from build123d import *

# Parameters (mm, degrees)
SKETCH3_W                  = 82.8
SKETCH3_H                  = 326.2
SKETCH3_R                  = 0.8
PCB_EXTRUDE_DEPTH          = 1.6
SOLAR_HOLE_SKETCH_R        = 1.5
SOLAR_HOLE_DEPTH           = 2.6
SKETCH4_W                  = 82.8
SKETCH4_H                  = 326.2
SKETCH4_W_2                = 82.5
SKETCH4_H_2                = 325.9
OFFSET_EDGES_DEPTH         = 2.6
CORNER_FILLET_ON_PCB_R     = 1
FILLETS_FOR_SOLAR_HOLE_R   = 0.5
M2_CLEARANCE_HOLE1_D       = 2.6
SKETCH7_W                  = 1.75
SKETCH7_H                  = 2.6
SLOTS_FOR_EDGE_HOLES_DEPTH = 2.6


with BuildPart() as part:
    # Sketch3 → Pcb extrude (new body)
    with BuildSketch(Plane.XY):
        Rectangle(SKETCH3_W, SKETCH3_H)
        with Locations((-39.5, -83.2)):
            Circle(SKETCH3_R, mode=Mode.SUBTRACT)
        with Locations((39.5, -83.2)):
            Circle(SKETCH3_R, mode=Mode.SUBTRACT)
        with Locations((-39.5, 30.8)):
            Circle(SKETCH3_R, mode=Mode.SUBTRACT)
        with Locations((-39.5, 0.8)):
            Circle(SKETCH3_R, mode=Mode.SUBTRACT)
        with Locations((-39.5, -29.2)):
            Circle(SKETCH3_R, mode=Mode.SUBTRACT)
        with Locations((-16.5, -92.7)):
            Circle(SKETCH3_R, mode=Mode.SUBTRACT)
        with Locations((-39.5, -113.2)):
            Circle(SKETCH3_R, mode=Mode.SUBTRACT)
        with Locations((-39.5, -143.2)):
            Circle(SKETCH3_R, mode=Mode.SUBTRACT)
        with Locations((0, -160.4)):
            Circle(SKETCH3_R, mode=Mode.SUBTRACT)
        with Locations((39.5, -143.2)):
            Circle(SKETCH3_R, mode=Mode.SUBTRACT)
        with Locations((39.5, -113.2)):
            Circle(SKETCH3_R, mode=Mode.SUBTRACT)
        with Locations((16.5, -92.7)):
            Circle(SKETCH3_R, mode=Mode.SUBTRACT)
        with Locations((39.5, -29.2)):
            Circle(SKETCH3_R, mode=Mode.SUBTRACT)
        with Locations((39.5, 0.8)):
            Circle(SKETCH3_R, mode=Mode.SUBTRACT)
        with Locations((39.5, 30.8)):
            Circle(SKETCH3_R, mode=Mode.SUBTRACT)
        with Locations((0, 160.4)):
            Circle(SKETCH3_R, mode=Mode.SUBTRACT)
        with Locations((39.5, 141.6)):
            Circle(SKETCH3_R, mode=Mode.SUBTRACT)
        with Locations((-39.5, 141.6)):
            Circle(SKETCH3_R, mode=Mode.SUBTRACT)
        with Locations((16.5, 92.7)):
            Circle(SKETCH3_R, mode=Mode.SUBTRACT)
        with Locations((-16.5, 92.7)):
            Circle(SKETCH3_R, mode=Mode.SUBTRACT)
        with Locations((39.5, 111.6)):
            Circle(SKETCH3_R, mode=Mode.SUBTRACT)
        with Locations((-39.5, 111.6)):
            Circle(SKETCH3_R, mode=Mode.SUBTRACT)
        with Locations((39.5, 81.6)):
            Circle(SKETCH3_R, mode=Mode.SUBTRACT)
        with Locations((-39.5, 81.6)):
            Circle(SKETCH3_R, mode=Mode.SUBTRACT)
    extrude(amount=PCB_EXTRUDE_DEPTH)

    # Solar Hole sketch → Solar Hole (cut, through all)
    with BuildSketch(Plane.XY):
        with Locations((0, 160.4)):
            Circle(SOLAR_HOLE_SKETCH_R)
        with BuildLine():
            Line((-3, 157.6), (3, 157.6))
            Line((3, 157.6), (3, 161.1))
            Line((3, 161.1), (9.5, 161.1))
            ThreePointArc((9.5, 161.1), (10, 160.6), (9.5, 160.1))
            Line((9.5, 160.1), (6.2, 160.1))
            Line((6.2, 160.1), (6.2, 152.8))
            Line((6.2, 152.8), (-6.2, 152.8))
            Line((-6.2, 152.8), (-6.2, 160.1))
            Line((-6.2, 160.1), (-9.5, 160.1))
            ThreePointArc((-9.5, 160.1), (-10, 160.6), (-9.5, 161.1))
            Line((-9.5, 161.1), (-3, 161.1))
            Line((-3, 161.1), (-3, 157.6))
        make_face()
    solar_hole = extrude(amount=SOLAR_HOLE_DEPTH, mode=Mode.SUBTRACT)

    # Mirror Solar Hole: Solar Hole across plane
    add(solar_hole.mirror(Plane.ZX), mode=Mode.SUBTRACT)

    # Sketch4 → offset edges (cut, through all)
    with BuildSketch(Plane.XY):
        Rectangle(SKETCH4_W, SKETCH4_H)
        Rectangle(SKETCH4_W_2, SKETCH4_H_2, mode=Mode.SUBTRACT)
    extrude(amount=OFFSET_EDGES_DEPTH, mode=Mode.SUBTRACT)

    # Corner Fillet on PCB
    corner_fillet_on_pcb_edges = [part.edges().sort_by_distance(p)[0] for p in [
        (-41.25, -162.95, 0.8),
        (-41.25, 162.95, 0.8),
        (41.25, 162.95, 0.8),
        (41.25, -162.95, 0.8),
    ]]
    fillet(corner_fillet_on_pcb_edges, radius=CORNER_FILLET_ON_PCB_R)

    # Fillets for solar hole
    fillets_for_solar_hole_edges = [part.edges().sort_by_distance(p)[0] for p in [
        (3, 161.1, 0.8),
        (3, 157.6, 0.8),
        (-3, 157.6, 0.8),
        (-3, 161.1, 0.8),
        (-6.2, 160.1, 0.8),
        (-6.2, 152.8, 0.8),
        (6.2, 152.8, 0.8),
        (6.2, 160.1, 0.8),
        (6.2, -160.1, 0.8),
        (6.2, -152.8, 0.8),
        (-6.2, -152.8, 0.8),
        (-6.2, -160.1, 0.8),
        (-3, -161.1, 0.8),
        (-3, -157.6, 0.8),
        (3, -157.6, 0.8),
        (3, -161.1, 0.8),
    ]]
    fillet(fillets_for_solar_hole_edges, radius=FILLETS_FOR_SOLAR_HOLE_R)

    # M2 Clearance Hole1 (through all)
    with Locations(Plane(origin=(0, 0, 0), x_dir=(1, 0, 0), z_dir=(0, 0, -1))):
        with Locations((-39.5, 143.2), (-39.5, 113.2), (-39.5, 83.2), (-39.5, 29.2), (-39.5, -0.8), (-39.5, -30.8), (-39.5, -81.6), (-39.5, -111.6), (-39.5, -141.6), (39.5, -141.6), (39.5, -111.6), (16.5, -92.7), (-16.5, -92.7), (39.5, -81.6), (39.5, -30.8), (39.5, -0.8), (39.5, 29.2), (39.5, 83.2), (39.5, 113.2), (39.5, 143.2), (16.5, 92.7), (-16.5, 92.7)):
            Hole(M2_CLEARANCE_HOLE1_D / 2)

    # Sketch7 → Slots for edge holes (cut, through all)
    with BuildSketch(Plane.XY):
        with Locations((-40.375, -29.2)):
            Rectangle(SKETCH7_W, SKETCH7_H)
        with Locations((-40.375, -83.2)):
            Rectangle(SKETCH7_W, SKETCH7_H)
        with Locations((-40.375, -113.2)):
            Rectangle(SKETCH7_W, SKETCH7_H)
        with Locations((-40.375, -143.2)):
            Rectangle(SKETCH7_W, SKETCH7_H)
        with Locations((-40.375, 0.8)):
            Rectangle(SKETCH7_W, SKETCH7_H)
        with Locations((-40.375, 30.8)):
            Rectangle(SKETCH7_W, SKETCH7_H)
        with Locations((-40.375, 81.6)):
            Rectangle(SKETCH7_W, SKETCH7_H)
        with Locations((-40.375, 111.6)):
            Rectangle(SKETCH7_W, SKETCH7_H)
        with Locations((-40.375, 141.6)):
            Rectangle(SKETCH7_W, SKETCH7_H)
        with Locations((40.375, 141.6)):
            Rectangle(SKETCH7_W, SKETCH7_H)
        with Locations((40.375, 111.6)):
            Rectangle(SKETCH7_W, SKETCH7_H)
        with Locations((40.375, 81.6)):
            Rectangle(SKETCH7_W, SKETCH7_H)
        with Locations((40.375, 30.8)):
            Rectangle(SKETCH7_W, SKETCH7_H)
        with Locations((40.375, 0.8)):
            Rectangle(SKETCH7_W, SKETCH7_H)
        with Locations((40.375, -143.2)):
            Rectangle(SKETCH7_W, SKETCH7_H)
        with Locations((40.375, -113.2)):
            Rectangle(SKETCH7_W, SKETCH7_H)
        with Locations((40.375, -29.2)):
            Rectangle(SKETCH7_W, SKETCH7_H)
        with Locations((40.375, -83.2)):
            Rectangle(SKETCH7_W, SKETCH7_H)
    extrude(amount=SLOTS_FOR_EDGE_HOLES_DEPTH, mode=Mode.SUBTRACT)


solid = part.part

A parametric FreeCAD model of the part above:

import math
import FreeCAD as App
import Part
import Sketcher

V = App.Vector
Q = App.Units.Quantity


def edges_at(feature, points):
    """Names of the edges that pass closest to the given points."""
    edges = feature.Shape.Edges
    near = lambda p: min(range(len(edges)), key=lambda i: edges[i].distToShape(Part.Vertex(*p))[0])
    return sorted({f"Edge{near(p) + 1}" for p in points})


def add_polygon(sketch, points):
    """Adds a closed chain of lines whose ends are joined by coincident constraints."""
    first, n = sketch.GeometryCount, len(points)
    for a, b in zip(points, points[1:] + points[:1]):
        sketch.addGeometry(Part.LineSegment(App.Vector(*a, 0), App.Vector(*b, 0)), False)
    for i in range(n):
        sketch.addConstraint(Sketcher.Constraint("Coincident", first + i, 2, first + (i + 1) % n, 1))

doc = App.newDocument("Part")
body = doc.addObject("PartDesign::Body", "Body")

# Sketch on XY plane
sketch1 = body.newObject("Sketcher::SketchObject", "Sketch")
sketch1.AttachmentSupport = (doc.getObject("XY_Plane"), [""])
sketch1.MapMode = "FlatFace"
add_polygon(sketch1, [(-41.4, 163.1), (-41.4, -163.1), (41.4, -163.1), (41.4, 163.1)])  # lines 0-3
sketch1.addGeometry(Part.Circle(V(-39.5, -143.2, 0), V(0, 0, 1), 0.8), False)  # 4
sketch1.addGeometry(Part.Circle(V(-39.5, -113.2, 0), V(0, 0, 1), 0.8), False)  # 5
sketch1.addGeometry(Part.Circle(V(-39.5, -83.2, 0), V(0, 0, 1), 0.8), False)  # 6
sketch1.addGeometry(Part.Circle(V(-16.5, -92.7, 0), V(0, 0, 1), 0.8), False)  # 7
sketch1.addGeometry(Part.Circle(V(-39.5, -29.2, 0), V(0, 0, 1), 0.8), False)  # 8
sketch1.addGeometry(Part.Circle(V(0, -160.4, 0), V(0, 0, 1), 0.8), False)  # 9
sketch1.addGeometry(Part.Circle(V(16.5, -92.7, 0), V(0, 0, 1), 0.8), False)  # 10
sketch1.addGeometry(Part.Circle(V(39.5, -143.2, 0), V(0, 0, 1), 0.8), False)  # 11
sketch1.addGeometry(Part.Circle(V(39.5, -113.2, 0), V(0, 0, 1), 0.8), False)  # 12
sketch1.addGeometry(Part.Circle(V(39.5, -83.2, 0), V(0, 0, 1), 0.8), False)  # 13
sketch1.addGeometry(Part.Circle(V(39.5, -29.2, 0), V(0, 0, 1), 0.8), False)  # 14
sketch1.addGeometry(Part.Circle(V(-39.5, 0.8, 0), V(0, 0, 1), 0.8), False)  # 15
sketch1.addGeometry(Part.Circle(V(-39.5, 30.8, 0), V(0, 0, 1), 0.8), False)  # 16
sketch1.addGeometry(Part.Circle(V(-39.5, 81.6, 0), V(0, 0, 1), 0.8), False)  # 17
sketch1.addGeometry(Part.Circle(V(-39.5, 111.6, 0), V(0, 0, 1), 0.8), False)  # 18
sketch1.addGeometry(Part.Circle(V(-39.5, 141.6, 0), V(0, 0, 1), 0.8), False)  # 19
sketch1.addGeometry(Part.Circle(V(-16.5, 92.7, 0), V(0, 0, 1), 0.8), False)  # 20
sketch1.addGeometry(Part.Circle(V(39.5, 0.8, 0), V(0, 0, 1), 0.8), False)  # 21
sketch1.addGeometry(Part.Circle(V(39.5, 30.8, 0), V(0, 0, 1), 0.8), False)  # 22
sketch1.addGeometry(Part.Circle(V(16.5, 92.7, 0), V(0, 0, 1), 0.8), False)  # 23
sketch1.addGeometry(Part.Circle(V(0, 160.4, 0), V(0, 0, 1), 0.8), False)  # 24
sketch1.addGeometry(Part.Circle(V(39.5, 81.6, 0), V(0, 0, 1), 0.8), False)  # 25
sketch1.addGeometry(Part.Circle(V(39.5, 111.6, 0), V(0, 0, 1), 0.8), False)  # 26
sketch1.addGeometry(Part.Circle(V(39.5, 141.6, 0), V(0, 0, 1), 0.8), False)  # 27
sketch1.addConstraint(Sketcher.Constraint("Vertical", 0))
sketch1.addConstraint(Sketcher.Constraint("Horizontal", 1))
sketch1.addConstraint(Sketcher.Constraint("Vertical", 2))
sketch1.addConstraint(Sketcher.Constraint("Horizontal", 3))
sketch1.addConstraint(Sketcher.Constraint("Equal", 4, 5))
sketch1.addConstraint(Sketcher.Constraint("Equal", 5, 6))
sketch1.addConstraint(Sketcher.Constraint("Equal", 6, 7))
sketch1.addConstraint(Sketcher.Constraint("Equal", 7, 8))
sketch1.addConstraint(Sketcher.Constraint("Equal", 8, 9))
sketch1.addConstraint(Sketcher.Constraint("Equal", 9, 10))
sketch1.addConstraint(Sketcher.Constraint("Equal", 10, 11))
sketch1.addConstraint(Sketcher.Constraint("Equal", 11, 12))
sketch1.addConstraint(Sketcher.Constraint("Equal", 12, 13))
sketch1.addConstraint(Sketcher.Constraint("Equal", 13, 14))
sketch1.addConstraint(Sketcher.Constraint("Equal", 14, 15))
sketch1.addConstraint(Sketcher.Constraint("Equal", 15, 16))
sketch1.addConstraint(Sketcher.Constraint("Equal", 16, 17))
sketch1.addConstraint(Sketcher.Constraint("Equal", 17, 18))
sketch1.addConstraint(Sketcher.Constraint("Equal", 18, 19))
sketch1.addConstraint(Sketcher.Constraint("Equal", 19, 20))
sketch1.addConstraint(Sketcher.Constraint("Equal", 20, 21))
sketch1.addConstraint(Sketcher.Constraint("Equal", 21, 22))
sketch1.addConstraint(Sketcher.Constraint("Equal", 22, 23))
sketch1.addConstraint(Sketcher.Constraint("Equal", 23, 24))
sketch1.addConstraint(Sketcher.Constraint("Equal", 24, 25))
sketch1.addConstraint(Sketcher.Constraint("Equal", 25, 26))
sketch1.addConstraint(Sketcher.Constraint("Equal", 26, 27))
sketch1.addConstraint(Sketcher.Constraint("Symmetric", 10, 3, 20, 3, -1, 1))
sketch1.addConstraint(Sketcher.Constraint("Symmetric", 7, 3, 23, 3, -1, 1))
sketch1.addConstraint(Sketcher.Constraint("Symmetric", 9, 3, 24, 3, -1, 1))
sketch1.addConstraint(Sketcher.Constraint("Symmetric", 0, 2, 2, 2, -1, 1))
sketch1.addConstraint(Sketcher.Constraint("Symmetric", 7, 3, 10, 3, -2))
sketch1.addConstraint(Sketcher.Constraint("Symmetric", 4, 3, 11, 3, -2))
sketch1.addConstraint(Sketcher.Constraint("Symmetric", 5, 3, 12, 3, -2))
sketch1.addConstraint(Sketcher.Constraint("Symmetric", 6, 3, 13, 3, -2))
sketch1.addConstraint(Sketcher.Constraint("Symmetric", 8, 3, 14, 3, -2))
sketch1.addConstraint(Sketcher.Constraint("Symmetric", 15, 3, 21, 3, -2))
sketch1.addConstraint(Sketcher.Constraint("Symmetric", 16, 3, 22, 3, -2))
sketch1.addConstraint(Sketcher.Constraint("Symmetric", 17, 3, 25, 3, -2))
sketch1.addConstraint(Sketcher.Constraint("Symmetric", 18, 3, 26, 3, -2))
sketch1.addConstraint(Sketcher.Constraint("Symmetric", 19, 3, 27, 3, -2))
sketch1.addConstraint(Sketcher.Constraint("PointOnObject", 9, 3, -2))
sketch1.addConstraint(Sketcher.Constraint("Vertical", 4, 3, 5, 3))
sketch1.addConstraint(Sketcher.Constraint("Vertical", 5, 3, 6, 3))
sketch1.addConstraint(Sketcher.Constraint("Vertical", 6, 3, 8, 3))
sketch1.addConstraint(Sketcher.Constraint("Vertical", 8, 3, 15, 3))
sketch1.addConstraint(Sketcher.Constraint("Vertical", 15, 3, 16, 3))
sketch1.addConstraint(Sketcher.Constraint("Vertical", 16, 3, 17, 3))
sketch1.addConstraint(Sketcher.Constraint("Vertical", 17, 3, 18, 3))
sketch1.addConstraint(Sketcher.Constraint("Vertical", 18, 3, 19, 3))
sketch1.addConstraint(Sketcher.Constraint("Diameter", 4, Q("1.6 mm")))
sketch1.addConstraint(Sketcher.Constraint("DistanceX", 1, 1, 1, 2, Q("82.8 mm")))
sketch1.addConstraint(Sketcher.Constraint("DistanceY", 0, 2, 0, 1, Q("326.2 mm")))
sketch1.addConstraint(Sketcher.Constraint("DistanceY", 4, 3, 5, 3, Q("30 mm")))
sketch1.addConstraint(Sketcher.Constraint("DistanceY", 5, 3, 6, 3, Q("30 mm")))
sketch1.addConstraint(Sketcher.Constraint("DistanceX", 6, 3, 7, 3, Q("23 mm")))
sketch1.addConstraint(Sketcher.Constraint("DistanceY", 6, 3, 8, 3, Q("54 mm")))
sketch1.addConstraint(Sketcher.Constraint("DistanceX", 7, 3, 10, 3, Q("33 mm")))
sketch1.addConstraint(Sketcher.Constraint("DistanceY", 8, 3, 15, 3, Q("30 mm")))
sketch1.addConstraint(Sketcher.Constraint("DistanceY", 15, 3, 16, 3, Q("30 mm")))
sketch1.addConstraint(Sketcher.Constraint("DistanceY", 17, 3, 18, 3, Q("30 mm")))
sketch1.addConstraint(Sketcher.Constraint("DistanceY", 18, 3, 19, 3, Q("30 mm")))
sketch1.addConstraint(Sketcher.Constraint("DistanceY", 4, 3, -1, 1, Q("143.2 mm")))
sketch1.addConstraint(Sketcher.Constraint("DistanceY", 7, 3, -1, 1, Q("92.7 mm")))
sketch1.addConstraint(Sketcher.Constraint("DistanceY", 9, 3, -1, 1, Q("160.4 mm")))
sketch1.addConstraint(Sketcher.Constraint("DistanceY", -1, 1, 17, 3, Q("81.6 mm")))
pad1 = body.newObject("PartDesign::Pad", "Pad")
pad1.Profile = sketch1
pad1.Length = 1.6

# Sketch on XY plane
sketch2 = body.newObject("Sketcher::SketchObject", "Sketch001")
sketch2.AttachmentSupport = (doc.getObject("XY_Plane"), [""])
sketch2.MapMode = "FlatFace"
sketch2.addGeometry(Part.Circle(V(0, 160.4, 0), V(0, 0, 1), 1.5), False)
sketch2.addGeometry(Part.LineSegment(V(3, 157.6, 0), V(-3, 157.6, 0)), False)
sketch2.addGeometry(Part.LineSegment(V(-3, 157.6, 0), V(-3, 161.1, 0)), False)
sketch2.addGeometry(Part.LineSegment(V(-3, 161.1, 0), V(-9.5, 161.1, 0)), False)
sketch2.addGeometry(Part.ArcOfCircle(Part.Circle(V(-9.5, 160.6, 0), V(0, 0, 1), 0.5), math.radians(90), math.radians(270)), False)
sketch2.addGeometry(Part.LineSegment(V(-9.5, 160.1, 0), V(-6.2, 160.1, 0)), False)
sketch2.addGeometry(Part.LineSegment(V(-6.2, 160.1, 0), V(-6.2, 152.8, 0)), False)
sketch2.addGeometry(Part.LineSegment(V(-6.2, 152.8, 0), V(6.2, 152.8, 0)), False)
sketch2.addGeometry(Part.LineSegment(V(6.2, 152.8, 0), V(6.2, 160.1, 0)), False)
sketch2.addGeometry(Part.LineSegment(V(6.2, 160.1, 0), V(9.5, 160.1, 0)), False)
sketch2.addGeometry(Part.ArcOfCircle(Part.Circle(V(9.5, 160.6, 0), V(0, 0, 1), 0.5), math.radians(-90), math.radians(90)), False)
sketch2.addGeometry(Part.LineSegment(V(9.5, 161.1, 0), V(3, 161.1, 0)), False)
sketch2.addGeometry(Part.LineSegment(V(3, 161.1, 0), V(3, 157.6, 0)), False)
sketch2.addConstraint(Sketcher.Constraint("Coincident", 1, 2, 2, 1))
sketch2.addConstraint(Sketcher.Constraint("Coincident", 2, 2, 3, 1))
sketch2.addConstraint(Sketcher.Constraint("Tangent", 3, 2, 4, 1))
sketch2.addConstraint(Sketcher.Constraint("Tangent", 4, 2, 5, 1))
sketch2.addConstraint(Sketcher.Constraint("Coincident", 5, 2, 6, 1))
sketch2.addConstraint(Sketcher.Constraint("Coincident", 6, 2, 7, 1))
sketch2.addConstraint(Sketcher.Constraint("Coincident", 7, 2, 8, 1))
sketch2.addConstraint(Sketcher.Constraint("Coincident", 8, 2, 9, 1))
sketch2.addConstraint(Sketcher.Constraint("Tangent", 9, 2, 10, 1))
sketch2.addConstraint(Sketcher.Constraint("Tangent", 10, 2, 11, 1))
sketch2.addConstraint(Sketcher.Constraint("Coincident", 11, 2, 12, 1))
sketch2.addConstraint(Sketcher.Constraint("Coincident", 12, 2, 1, 1))
sketch2.addConstraint(Sketcher.Constraint("Horizontal", 1))
sketch2.addConstraint(Sketcher.Constraint("Vertical", 2))
sketch2.addConstraint(Sketcher.Constraint("Horizontal", 3))
sketch2.addConstraint(Sketcher.Constraint("Horizontal", 5))
sketch2.addConstraint(Sketcher.Constraint("Vertical", 6))
sketch2.addConstraint(Sketcher.Constraint("Horizontal", 7))
sketch2.addConstraint(Sketcher.Constraint("Vertical", 8))
sketch2.addConstraint(Sketcher.Constraint("Horizontal", 9))
sketch2.addConstraint(Sketcher.Constraint("Horizontal", 11))
sketch2.addConstraint(Sketcher.Constraint("Vertical", 12))
sketch2.addConstraint(Sketcher.Constraint("Equal", 4, 10))
sketch2.addConstraint(Sketcher.Constraint("Symmetric", 4, 3, 10, 3, -2))
sketch2.addConstraint(Sketcher.Constraint("PointOnObject", 0, 3, -2))
sketch2.addConstraint(Sketcher.Constraint("Equal", 5, 9))
sketch2.addConstraint(Sketcher.Constraint("Equal", 3, 11))
sketch2.addConstraint(Sketcher.Constraint("Diameter", 0, Q("3 mm")))
sketch2.addConstraint(Sketcher.Constraint("Radius", 4, Q("0.5 mm")))
sketch2.addConstraint(Sketcher.Constraint("DistanceX", 1, 2, 1, 1, Q("6 mm")))
sketch2.addConstraint(Sketcher.Constraint("DistanceX", 3, 2, 3, 1, Q("6.5 mm")))
sketch2.addConstraint(Sketcher.Constraint("DistanceX", 5, 1, 5, 2, Q("3.3 mm")))
sketch2.addConstraint(Sketcher.Constraint("DistanceY", 2, 1, 2, 2, Q("3.5 mm")))
sketch2.addConstraint(Sketcher.Constraint("DistanceY", 6, 2, 6, 1, Q("7.3 mm")))
sketch2.addConstraint(Sketcher.Constraint("DistanceY", -1, 1, 0, 3, Q("160.4 mm")))
sketch2.addConstraint(Sketcher.Constraint("DistanceY", -1, 1, 4, 3, Q("160.6 mm")))
pocket1 = body.newObject("PartDesign::Pocket", "Pocket")
pocket1.Profile = sketch2
pocket1.Type = "ThroughAll"
pocket1.Reversed = True
doc.recompute()

mirrored = body.newObject("PartDesign::Mirrored", "Mirrored")
mirrored.Originals = [pocket1]
mirrored.MirrorPlane = (doc.getObject("XZ_Plane"), [""])
body.Tip = mirrored

# Sketch on XY plane
sketch3 = body.newObject("Sketcher::SketchObject", "Sketch002")
sketch3.AttachmentSupport = (doc.getObject("XY_Plane"), [""])
sketch3.MapMode = "FlatFace"
add_polygon(sketch3, [(-41.4, 163.1), (-41.4, -163.1), (41.4, -163.1), (41.4, 163.1)])  # lines 0-3
add_polygon(sketch3, [(41.25, -162.95), (-41.25, -162.95), (-41.25, 162.95), (41.25, 162.95)])  # lines 4-7
sketch3.addConstraint(Sketcher.Constraint("Vertical", 0))
sketch3.addConstraint(Sketcher.Constraint("Horizontal", 1))
sketch3.addConstraint(Sketcher.Constraint("Vertical", 2))
sketch3.addConstraint(Sketcher.Constraint("Horizontal", 3))
sketch3.addConstraint(Sketcher.Constraint("Horizontal", 4))
sketch3.addConstraint(Sketcher.Constraint("Vertical", 5))
sketch3.addConstraint(Sketcher.Constraint("Horizontal", 6))
sketch3.addConstraint(Sketcher.Constraint("Vertical", 7))
sketch3.addConstraint(Sketcher.Constraint("Symmetric", 0, 2, 2, 2, -1, 1))
sketch3.addConstraint(Sketcher.Constraint("Symmetric", 4, 2, 6, 2, -1, 1))
sketch3.addConstraint(Sketcher.Constraint("DistanceX", 1, 1, 1, 2, Q("82.8 mm")))
sketch3.addConstraint(Sketcher.Constraint("DistanceX", 4, 2, 4, 1, Q("82.5 mm")))
sketch3.addConstraint(Sketcher.Constraint("DistanceY", 0, 2, 0, 1, Q("326.2 mm")))
sketch3.addConstraint(Sketcher.Constraint("DistanceY", 5, 1, 5, 2, Q("325.9 mm")))
pocket2 = body.newObject("PartDesign::Pocket", "Pocket001")
pocket2.Profile = sketch3
pocket2.Type = "ThroughAll"
pocket2.Reversed = True
doc.recompute()

fillet = body.newObject("PartDesign::Fillet", "Fillet")
fillet.Base = (pocket2, edges_at(pocket2, [
    (-41.25, -162.95, 0.8),
    (-41.25, 162.95, 0.8),
    (41.25, 162.95, 0.8),
    (41.25, -162.95, 0.8),
]))
fillet.Radius = 1
doc.recompute()

fillet2 = body.newObject("PartDesign::Fillet", "Fillet001")
fillet2.Base = (fillet, edges_at(fillet, [
    (3, 161.1, 0.8),
    (3, 157.6, 0.8),
    (-3, 157.6, 0.8),
    (-3, 161.1, 0.8),
    (-6.2, 160.1, 0.8),
    (-6.2, 152.8, 0.8),
    (6.2, 152.8, 0.8),
    (6.2, 160.1, 0.8),
    (6.2, -160.1, 0.8),
    (6.2, -152.8, 0.8),
    (-6.2, -152.8, 0.8),
    (-6.2, -160.1, 0.8),
    (-3, -161.1, 0.8),
    (-3, -157.6, 0.8),
    (3, -157.6, 0.8),
    (3, -161.1, 0.8),
]))
fillet2.Radius = 0.5

# Sketch on XY plane
sketch4 = body.newObject("Sketcher::SketchObject", "Sketch003")
sketch4.AttachmentSupport = (doc.getObject("XY_Plane"), [""])
sketch4.MapMode = "FlatFace"
sketch4.addGeometry(Part.Circle(V(-39.5, -143.2, 0), V(0, 0, 1), 1.3), False)
sketch4.addGeometry(Part.Circle(V(-39.5, -113.2, 0), V(0, 0, 1), 1.3), False)
sketch4.addGeometry(Part.Circle(V(-39.5, -83.2, 0), V(0, 0, 1), 1.3), False)
sketch4.addGeometry(Part.Circle(V(-39.5, -29.2, 0), V(0, 0, 1), 1.3), False)
sketch4.addGeometry(Part.Circle(V(-39.5, 0.8, 0), V(0, 0, 1), 1.3), False)
sketch4.addGeometry(Part.Circle(V(-39.5, 30.8, 0), V(0, 0, 1), 1.3), False)
sketch4.addGeometry(Part.Circle(V(-39.5, 81.6, 0), V(0, 0, 1), 1.3), False)
sketch4.addGeometry(Part.Circle(V(-39.5, 111.6, 0), V(0, 0, 1), 1.3), False)
sketch4.addGeometry(Part.Circle(V(-39.5, 141.6, 0), V(0, 0, 1), 1.3), False)
sketch4.addGeometry(Part.Circle(V(39.5, 141.6, 0), V(0, 0, 1), 1.3), False)
sketch4.addGeometry(Part.Circle(V(39.5, 111.6, 0), V(0, 0, 1), 1.3), False)
sketch4.addGeometry(Part.Circle(V(16.5, 92.7, 0), V(0, 0, 1), 1.3), False)
sketch4.addGeometry(Part.Circle(V(-16.5, 92.7, 0), V(0, 0, 1), 1.3), False)
sketch4.addGeometry(Part.Circle(V(39.5, 81.6, 0), V(0, 0, 1), 1.3), False)
sketch4.addGeometry(Part.Circle(V(39.5, 30.8, 0), V(0, 0, 1), 1.3), False)
sketch4.addGeometry(Part.Circle(V(39.5, 0.8, 0), V(0, 0, 1), 1.3), False)
sketch4.addGeometry(Part.Circle(V(39.5, -29.2, 0), V(0, 0, 1), 1.3), False)
sketch4.addGeometry(Part.Circle(V(39.5, -83.2, 0), V(0, 0, 1), 1.3), False)
sketch4.addGeometry(Part.Circle(V(39.5, -113.2, 0), V(0, 0, 1), 1.3), False)
sketch4.addGeometry(Part.Circle(V(39.5, -143.2, 0), V(0, 0, 1), 1.3), False)
sketch4.addGeometry(Part.Circle(V(16.5, -92.7, 0), V(0, 0, 1), 1.3), False)
sketch4.addGeometry(Part.Circle(V(-16.5, -92.7, 0), V(0, 0, 1), 1.3), False)
sketch4.addConstraint(Sketcher.Constraint("Equal", 0, 1))
sketch4.addConstraint(Sketcher.Constraint("Equal", 1, 2))
sketch4.addConstraint(Sketcher.Constraint("Equal", 2, 3))
sketch4.addConstraint(Sketcher.Constraint("Equal", 3, 4))
sketch4.addConstraint(Sketcher.Constraint("Equal", 4, 5))
sketch4.addConstraint(Sketcher.Constraint("Equal", 5, 6))
sketch4.addConstraint(Sketcher.Constraint("Equal", 6, 7))
sketch4.addConstraint(Sketcher.Constraint("Equal", 7, 8))
sketch4.addConstraint(Sketcher.Constraint("Equal", 8, 9))
sketch4.addConstraint(Sketcher.Constraint("Equal", 9, 10))
sketch4.addConstraint(Sketcher.Constraint("Equal", 10, 11))
sketch4.addConstraint(Sketcher.Constraint("Equal", 11, 12))
sketch4.addConstraint(Sketcher.Constraint("Equal", 12, 13))
sketch4.addConstraint(Sketcher.Constraint("Equal", 13, 14))
sketch4.addConstraint(Sketcher.Constraint("Equal", 14, 15))
sketch4.addConstraint(Sketcher.Constraint("Equal", 15, 16))
sketch4.addConstraint(Sketcher.Constraint("Equal", 16, 17))
sketch4.addConstraint(Sketcher.Constraint("Equal", 17, 18))
sketch4.addConstraint(Sketcher.Constraint("Equal", 18, 19))
sketch4.addConstraint(Sketcher.Constraint("Equal", 19, 20))
sketch4.addConstraint(Sketcher.Constraint("Equal", 20, 21))
sketch4.addConstraint(Sketcher.Constraint("Symmetric", 12, 3, 20, 3, -1, 1))
sketch4.addConstraint(Sketcher.Constraint("Symmetric", 11, 3, 21, 3, -1, 1))
sketch4.addConstraint(Sketcher.Constraint("Symmetric", 8, 3, 9, 3, -2))
sketch4.addConstraint(Sketcher.Constraint("Symmetric", 7, 3, 10, 3, -2))
sketch4.addConstraint(Sketcher.Constraint("Symmetric", 11, 3, 12, 3, -2))
sketch4.addConstraint(Sketcher.Constraint("Symmetric", 6, 3, 13, 3, -2))
sketch4.addConstraint(Sketcher.Constraint("Symmetric", 5, 3, 14, 3, -2))
sketch4.addConstraint(Sketcher.Constraint("Symmetric", 4, 3, 15, 3, -2))
sketch4.addConstraint(Sketcher.Constraint("Symmetric", 3, 3, 16, 3, -2))
sketch4.addConstraint(Sketcher.Constraint("Symmetric", 2, 3, 17, 3, -2))
sketch4.addConstraint(Sketcher.Constraint("Symmetric", 1, 3, 18, 3, -2))
sketch4.addConstraint(Sketcher.Constraint("Symmetric", 0, 3, 19, 3, -2))
sketch4.addConstraint(Sketcher.Constraint("Vertical", 0, 3, 1, 3))
sketch4.addConstraint(Sketcher.Constraint("Vertical", 1, 3, 2, 3))
sketch4.addConstraint(Sketcher.Constraint("Vertical", 2, 3, 3, 3))
sketch4.addConstraint(Sketcher.Constraint("Vertical", 3, 3, 4, 3))
sketch4.addConstraint(Sketcher.Constraint("Vertical", 4, 3, 5, 3))
sketch4.addConstraint(Sketcher.Constraint("Vertical", 5, 3, 6, 3))
sketch4.addConstraint(Sketcher.Constraint("Vertical", 6, 3, 7, 3))
sketch4.addConstraint(Sketcher.Constraint("Vertical", 7, 3, 8, 3))
sketch4.addConstraint(Sketcher.Constraint("Diameter", 0, Q("2.6 mm")))
sketch4.addConstraint(Sketcher.Constraint("DistanceY", 0, 3, 1, 3, Q("30 mm")))
sketch4.addConstraint(Sketcher.Constraint("DistanceY", 1, 3, 2, 3, Q("30 mm")))
sketch4.addConstraint(Sketcher.Constraint("DistanceY", 2, 3, 3, 3, Q("54 mm")))
sketch4.addConstraint(Sketcher.Constraint("DistanceY", 3, 3, 4, 3, Q("30 mm")))
sketch4.addConstraint(Sketcher.Constraint("DistanceY", 4, 3, 5, 3, Q("30 mm")))
sketch4.addConstraint(Sketcher.Constraint("DistanceY", 6, 3, 7, 3, Q("30 mm")))
sketch4.addConstraint(Sketcher.Constraint("DistanceY", 7, 3, 8, 3, Q("30 mm")))
sketch4.addConstraint(Sketcher.Constraint("DistanceX", 8, 3, 9, 3, Q("79 mm")))
sketch4.addConstraint(Sketcher.Constraint("DistanceX", 11, 3, 10, 3, Q("23 mm")))
sketch4.addConstraint(Sketcher.Constraint("DistanceY", 0, 3, -1, 1, Q("143.2 mm")))
sketch4.addConstraint(Sketcher.Constraint("DistanceY", -1, 1, 6, 3, Q("81.6 mm")))
sketch4.addConstraint(Sketcher.Constraint("DistanceY", -1, 1, 11, 3, Q("92.7 mm")))
doc.recompute()
hole = body.newObject("PartDesign::Hole", "Hole")
hole.Profile = sketch4
hole.ThreadType = "None"
hole.Diameter = 2.6
hole.DepthType = "ThroughAll"
hole.Reversed = True

# Sketch on XY plane
sketch5 = body.newObject("Sketcher::SketchObject", "Sketch004")
sketch5.AttachmentSupport = (doc.getObject("XY_Plane"), [""])
sketch5.MapMode = "FlatFace"
add_polygon(sketch5, [(-41.25, -27.9), (-41.25, -30.5), (-39.5, -30.5), (-39.5, -27.9)])  # lines 0-3
add_polygon(sketch5, [(-41.25, -81.9), (-41.25, -84.5), (-39.5, -84.5), (-39.5, -81.9)])  # lines 4-7
add_polygon(sketch5, [(-41.25, -111.9), (-41.25, -114.5), (-39.5, -114.5), (-39.5, -111.9)])  # lines 8-11
add_polygon(sketch5, [(-41.25, -141.9), (-41.25, -144.5), (-39.5, -144.5), (-39.5, -141.9)])  # lines 12-15
add_polygon(sketch5, [(-41.25, 2.1), (-41.25, -0.5), (-39.5, -0.5), (-39.5, 2.1)])  # lines 16-19
add_polygon(sketch5, [(-41.25, 32.1), (-41.25, 29.5), (-39.5, 29.5), (-39.5, 32.1)])  # lines 20-23
add_polygon(sketch5, [(-41.25, 82.9), (-41.25, 80.3), (-39.5, 80.3), (-39.5, 82.9)])  # lines 24-27
add_polygon(sketch5, [(-41.25, 112.9), (-41.25, 110.3), (-39.5, 110.3), (-39.5, 112.9)])  # lines 28-31
add_polygon(sketch5, [(-41.25, 142.9), (-41.25, 140.3), (-39.5, 140.3), (-39.5, 142.9)])  # lines 32-35
add_polygon(sketch5, [(39.5, 142.9), (39.5, 140.3), (41.25, 140.3), (41.25, 142.9)])  # lines 36-39
add_polygon(sketch5, [(39.5, 112.9), (39.5, 110.3), (41.25, 110.3), (41.25, 112.9)])  # lines 40-43
add_polygon(sketch5, [(39.5, 82.9), (39.5, 80.3), (41.25, 80.3), (41.25, 82.9)])  # lines 44-47
add_polygon(sketch5, [(39.5, 32.1), (39.5, 29.5), (41.25, 29.5), (41.25, 32.1)])  # lines 48-51
add_polygon(sketch5, [(39.5, 2.1), (39.5, -0.5), (41.25, -0.5), (41.25, 2.1)])  # lines 52-55
add_polygon(sketch5, [(39.5, -141.9), (39.5, -144.5), (41.25, -144.5), (41.25, -141.9)])  # lines 56-59
add_polygon(sketch5, [(39.5, -111.9), (39.5, -114.5), (41.25, -114.5), (41.25, -111.9)])  # lines 60-63
add_polygon(sketch5, [(39.5, -27.9), (39.5, -30.5), (41.25, -30.5), (41.25, -27.9)])  # lines 64-67
add_polygon(sketch5, [(39.5, -81.9), (39.5, -84.5), (41.25, -84.5), (41.25, -81.9)])  # lines 68-71
sketch5.addConstraint(Sketcher.Constraint("Vertical", 0))
sketch5.addConstraint(Sketcher.Constraint("Horizontal", 1))
sketch5.addConstraint(Sketcher.Constraint("Vertical", 2))
sketch5.addConstraint(Sketcher.Constraint("Horizontal", 3))
sketch5.addConstraint(Sketcher.Constraint("Vertical", 4))
sketch5.addConstraint(Sketcher.Constraint("Horizontal", 5))
sketch5.addConstraint(Sketcher.Constraint("Vertical", 6))
sketch5.addConstraint(Sketcher.Constraint("Horizontal", 7))
sketch5.addConstraint(Sketcher.Constraint("Vertical", 8))
sketch5.addConstraint(Sketcher.Constraint("Horizontal", 9))
sketch5.addConstraint(Sketcher.Constraint("Vertical", 10))
sketch5.addConstraint(Sketcher.Constraint("Horizontal", 11))
sketch5.addConstraint(Sketcher.Constraint("Vertical", 12))
sketch5.addConstraint(Sketcher.Constraint("Horizontal", 13))
sketch5.addConstraint(Sketcher.Constraint("Vertical", 14))
sketch5.addConstraint(Sketcher.Constraint("Horizontal", 15))
sketch5.addConstraint(Sketcher.Constraint("Vertical", 16))
sketch5.addConstraint(Sketcher.Constraint("Horizontal", 17))
sketch5.addConstraint(Sketcher.Constraint("Vertical", 18))
sketch5.addConstraint(Sketcher.Constraint("Horizontal", 19))
sketch5.addConstraint(Sketcher.Constraint("Vertical", 20))
sketch5.addConstraint(Sketcher.Constraint("Horizontal", 21))
sketch5.addConstraint(Sketcher.Constraint("Vertical", 22))
sketch5.addConstraint(Sketcher.Constraint("Horizontal", 23))
sketch5.addConstraint(Sketcher.Constraint("Vertical", 24))
sketch5.addConstraint(Sketcher.Constraint("Horizontal", 25))
sketch5.addConstraint(Sketcher.Constraint("Vertical", 26))
sketch5.addConstraint(Sketcher.Constraint("Horizontal", 27))
sketch5.addConstraint(Sketcher.Constraint("Vertical", 28))
sketch5.addConstraint(Sketcher.Constraint("Horizontal", 29))
sketch5.addConstraint(Sketcher.Constraint("Vertical", 30))
sketch5.addConstraint(Sketcher.Constraint("Horizontal", 31))
sketch5.addConstraint(Sketcher.Constraint("Vertical", 32))
sketch5.addConstraint(Sketcher.Constraint("Horizontal", 33))
sketch5.addConstraint(Sketcher.Constraint("Vertical", 34))
sketch5.addConstraint(Sketcher.Constraint("Horizontal", 35))
sketch5.addConstraint(Sketcher.Constraint("Vertical", 36))
sketch5.addConstraint(Sketcher.Constraint("Horizontal", 37))
sketch5.addConstraint(Sketcher.Constraint("Vertical", 38))
sketch5.addConstraint(Sketcher.Constraint("Horizontal", 39))
sketch5.addConstraint(Sketcher.Constraint("Vertical", 40))
sketch5.addConstraint(Sketcher.Constraint("Horizontal", 41))
sketch5.addConstraint(Sketcher.Constraint("Vertical", 42))
sketch5.addConstraint(Sketcher.Constraint("Horizontal", 43))
sketch5.addConstraint(Sketcher.Constraint("Vertical", 44))
sketch5.addConstraint(Sketcher.Constraint("Horizontal", 45))
sketch5.addConstraint(Sketcher.Constraint("Vertical", 46))
sketch5.addConstraint(Sketcher.Constraint("Horizontal", 47))
sketch5.addConstraint(Sketcher.Constraint("Vertical", 48))
sketch5.addConstraint(Sketcher.Constraint("Horizontal", 49))
sketch5.addConstraint(Sketcher.Constraint("Vertical", 50))
sketch5.addConstraint(Sketcher.Constraint("Horizontal", 51))
sketch5.addConstraint(Sketcher.Constraint("Vertical", 52))
sketch5.addConstraint(Sketcher.Constraint("Horizontal", 53))
sketch5.addConstraint(Sketcher.Constraint("Vertical", 54))
sketch5.addConstraint(Sketcher.Constraint("Horizontal", 55))
sketch5.addConstraint(Sketcher.Constraint("Vertical", 56))
sketch5.addConstraint(Sketcher.Constraint("Horizontal", 57))
sketch5.addConstraint(Sketcher.Constraint("Vertical", 58))
sketch5.addConstraint(Sketcher.Constraint("Horizontal", 59))
sketch5.addConstraint(Sketcher.Constraint("Vertical", 60))
sketch5.addConstraint(Sketcher.Constraint("Horizontal", 61))
sketch5.addConstraint(Sketcher.Constraint("Vertical", 62))
sketch5.addConstraint(Sketcher.Constraint("Horizontal", 63))
sketch5.addConstraint(Sketcher.Constraint("Vertical", 64))
sketch5.addConstraint(Sketcher.Constraint("Horizontal", 65))
sketch5.addConstraint(Sketcher.Constraint("Vertical", 66))
sketch5.addConstraint(Sketcher.Constraint("Horizontal", 67))
sketch5.addConstraint(Sketcher.Constraint("Vertical", 68))
sketch5.addConstraint(Sketcher.Constraint("Horizontal", 69))
sketch5.addConstraint(Sketcher.Constraint("Vertical", 70))
sketch5.addConstraint(Sketcher.Constraint("Horizontal", 71))
sketch5.addConstraint(Sketcher.Constraint("Symmetric", 33, 2, 36, 2, -2))
sketch5.addConstraint(Sketcher.Constraint("Symmetric", 35, 2, 38, 2, -2))
sketch5.addConstraint(Sketcher.Constraint("Symmetric", 29, 2, 40, 2, -2))
sketch5.addConstraint(Sketcher.Constraint("Symmetric", 31, 2, 42, 2, -2))
sketch5.addConstraint(Sketcher.Constraint("Symmetric", 25, 2, 44, 2, -2))
sketch5.addConstraint(Sketcher.Constraint("Symmetric", 27, 2, 46, 2, -2))
sketch5.addConstraint(Sketcher.Constraint("Symmetric", 21, 2, 48, 2, -2))
sketch5.addConstraint(Sketcher.Constraint("Symmetric", 23, 2, 50, 2, -2))
sketch5.addConstraint(Sketcher.Constraint("Symmetric", 17, 2, 52, 2, -2))
sketch5.addConstraint(Sketcher.Constraint("Symmetric", 19, 2, 54, 2, -2))
sketch5.addConstraint(Sketcher.Constraint("Symmetric", 13, 2, 56, 2, -2))
sketch5.addConstraint(Sketcher.Constraint("Symmetric", 15, 2, 58, 2, -2))
sketch5.addConstraint(Sketcher.Constraint("Symmetric", 9, 2, 60, 2, -2))
sketch5.addConstraint(Sketcher.Constraint("Symmetric", 11, 2, 62, 2, -2))
sketch5.addConstraint(Sketcher.Constraint("Symmetric", 1, 2, 64, 2, -2))
sketch5.addConstraint(Sketcher.Constraint("Symmetric", 3, 2, 66, 2, -2))
sketch5.addConstraint(Sketcher.Constraint("Symmetric", 5, 2, 68, 2, -2))
sketch5.addConstraint(Sketcher.Constraint("Symmetric", 7, 2, 70, 2, -2))
sketch5.addConstraint(Sketcher.Constraint("Vertical", 3, 2, 4, 2))
sketch5.addConstraint(Sketcher.Constraint("Vertical", 2, 2, 5, 2))
sketch5.addConstraint(Sketcher.Constraint("Vertical", 7, 2, 8, 2))
sketch5.addConstraint(Sketcher.Constraint("Vertical", 6, 2, 9, 2))
sketch5.addConstraint(Sketcher.Constraint("Vertical", 11, 2, 12, 2))
sketch5.addConstraint(Sketcher.Constraint("Vertical", 10, 2, 13, 2))
sketch5.addConstraint(Sketcher.Constraint("Vertical", 15, 2, 16, 2))
sketch5.addConstraint(Sketcher.Constraint("Vertical", 14, 2, 17, 2))
sketch5.addConstraint(Sketcher.Constraint("Vertical", 19, 2, 20, 2))
sketch5.addConstraint(Sketcher.Constraint("Vertical", 18, 2, 21, 2))
sketch5.addConstraint(Sketcher.Constraint("Vertical", 23, 2, 24, 2))
sketch5.addConstraint(Sketcher.Constraint("Vertical", 22, 2, 25, 2))
sketch5.addConstraint(Sketcher.Constraint("Vertical", 27, 2, 28, 2))
sketch5.addConstraint(Sketcher.Constraint("Vertical", 26, 2, 29, 2))
sketch5.addConstraint(Sketcher.Constraint("Vertical", 31, 2, 32, 2))
sketch5.addConstraint(Sketcher.Constraint("Vertical", 30, 2, 33, 2))
sketch5.addConstraint(Sketcher.Constraint("Equal", 2, 4))
sketch5.addConstraint(Sketcher.Constraint("Equal", 6, 8))
sketch5.addConstraint(Sketcher.Constraint("Equal", 10, 12))
sketch5.addConstraint(Sketcher.Constraint("Equal", 14, 16))
sketch5.addConstraint(Sketcher.Constraint("Equal", 18, 20))
sketch5.addConstraint(Sketcher.Constraint("Equal", 22, 24))
sketch5.addConstraint(Sketcher.Constraint("Equal", 26, 28))
sketch5.addConstraint(Sketcher.Constraint("Equal", 30, 32))
sketch5.addConstraint(Sketcher.Constraint("DistanceY", 0, 2, 0, 1, Q("2.6 mm")))
sketch5.addConstraint(Sketcher.Constraint("DistanceX", 1, 1, 1, 2, Q("1.75 mm")))
sketch5.addConstraint(Sketcher.Constraint("DistanceY", 0, 2, -1, 1, Q("30.5 mm")))
sketch5.addConstraint(Sketcher.Constraint("DistanceX", 1, 2, -1, 1, Q("39.5 mm")))
sketch5.addConstraint(Sketcher.Constraint("DistanceY", 4, 2, -1, 1, Q("84.5 mm")))
sketch5.addConstraint(Sketcher.Constraint("DistanceY", 8, 2, -1, 1, Q("114.5 mm")))
sketch5.addConstraint(Sketcher.Constraint("DistanceY", 12, 2, -1, 1, Q("144.5 mm")))
sketch5.addConstraint(Sketcher.Constraint("DistanceY", 16, 2, -1, 1, Q("0.5 mm")))
sketch5.addConstraint(Sketcher.Constraint("DistanceY", -1, 1, 20, 2, Q("29.5 mm")))
sketch5.addConstraint(Sketcher.Constraint("DistanceY", -1, 1, 24, 2, Q("80.3 mm")))
sketch5.addConstraint(Sketcher.Constraint("DistanceY", -1, 1, 28, 2, Q("110.3 mm")))
sketch5.addConstraint(Sketcher.Constraint("DistanceY", -1, 1, 32, 2, Q("140.3 mm")))
pocket3 = body.newObject("PartDesign::Pocket", "Pocket002")
pocket3.Profile = sketch5
pocket3.Type = "ThroughAll"
pocket3.Reversed = True

doc.recompute()
